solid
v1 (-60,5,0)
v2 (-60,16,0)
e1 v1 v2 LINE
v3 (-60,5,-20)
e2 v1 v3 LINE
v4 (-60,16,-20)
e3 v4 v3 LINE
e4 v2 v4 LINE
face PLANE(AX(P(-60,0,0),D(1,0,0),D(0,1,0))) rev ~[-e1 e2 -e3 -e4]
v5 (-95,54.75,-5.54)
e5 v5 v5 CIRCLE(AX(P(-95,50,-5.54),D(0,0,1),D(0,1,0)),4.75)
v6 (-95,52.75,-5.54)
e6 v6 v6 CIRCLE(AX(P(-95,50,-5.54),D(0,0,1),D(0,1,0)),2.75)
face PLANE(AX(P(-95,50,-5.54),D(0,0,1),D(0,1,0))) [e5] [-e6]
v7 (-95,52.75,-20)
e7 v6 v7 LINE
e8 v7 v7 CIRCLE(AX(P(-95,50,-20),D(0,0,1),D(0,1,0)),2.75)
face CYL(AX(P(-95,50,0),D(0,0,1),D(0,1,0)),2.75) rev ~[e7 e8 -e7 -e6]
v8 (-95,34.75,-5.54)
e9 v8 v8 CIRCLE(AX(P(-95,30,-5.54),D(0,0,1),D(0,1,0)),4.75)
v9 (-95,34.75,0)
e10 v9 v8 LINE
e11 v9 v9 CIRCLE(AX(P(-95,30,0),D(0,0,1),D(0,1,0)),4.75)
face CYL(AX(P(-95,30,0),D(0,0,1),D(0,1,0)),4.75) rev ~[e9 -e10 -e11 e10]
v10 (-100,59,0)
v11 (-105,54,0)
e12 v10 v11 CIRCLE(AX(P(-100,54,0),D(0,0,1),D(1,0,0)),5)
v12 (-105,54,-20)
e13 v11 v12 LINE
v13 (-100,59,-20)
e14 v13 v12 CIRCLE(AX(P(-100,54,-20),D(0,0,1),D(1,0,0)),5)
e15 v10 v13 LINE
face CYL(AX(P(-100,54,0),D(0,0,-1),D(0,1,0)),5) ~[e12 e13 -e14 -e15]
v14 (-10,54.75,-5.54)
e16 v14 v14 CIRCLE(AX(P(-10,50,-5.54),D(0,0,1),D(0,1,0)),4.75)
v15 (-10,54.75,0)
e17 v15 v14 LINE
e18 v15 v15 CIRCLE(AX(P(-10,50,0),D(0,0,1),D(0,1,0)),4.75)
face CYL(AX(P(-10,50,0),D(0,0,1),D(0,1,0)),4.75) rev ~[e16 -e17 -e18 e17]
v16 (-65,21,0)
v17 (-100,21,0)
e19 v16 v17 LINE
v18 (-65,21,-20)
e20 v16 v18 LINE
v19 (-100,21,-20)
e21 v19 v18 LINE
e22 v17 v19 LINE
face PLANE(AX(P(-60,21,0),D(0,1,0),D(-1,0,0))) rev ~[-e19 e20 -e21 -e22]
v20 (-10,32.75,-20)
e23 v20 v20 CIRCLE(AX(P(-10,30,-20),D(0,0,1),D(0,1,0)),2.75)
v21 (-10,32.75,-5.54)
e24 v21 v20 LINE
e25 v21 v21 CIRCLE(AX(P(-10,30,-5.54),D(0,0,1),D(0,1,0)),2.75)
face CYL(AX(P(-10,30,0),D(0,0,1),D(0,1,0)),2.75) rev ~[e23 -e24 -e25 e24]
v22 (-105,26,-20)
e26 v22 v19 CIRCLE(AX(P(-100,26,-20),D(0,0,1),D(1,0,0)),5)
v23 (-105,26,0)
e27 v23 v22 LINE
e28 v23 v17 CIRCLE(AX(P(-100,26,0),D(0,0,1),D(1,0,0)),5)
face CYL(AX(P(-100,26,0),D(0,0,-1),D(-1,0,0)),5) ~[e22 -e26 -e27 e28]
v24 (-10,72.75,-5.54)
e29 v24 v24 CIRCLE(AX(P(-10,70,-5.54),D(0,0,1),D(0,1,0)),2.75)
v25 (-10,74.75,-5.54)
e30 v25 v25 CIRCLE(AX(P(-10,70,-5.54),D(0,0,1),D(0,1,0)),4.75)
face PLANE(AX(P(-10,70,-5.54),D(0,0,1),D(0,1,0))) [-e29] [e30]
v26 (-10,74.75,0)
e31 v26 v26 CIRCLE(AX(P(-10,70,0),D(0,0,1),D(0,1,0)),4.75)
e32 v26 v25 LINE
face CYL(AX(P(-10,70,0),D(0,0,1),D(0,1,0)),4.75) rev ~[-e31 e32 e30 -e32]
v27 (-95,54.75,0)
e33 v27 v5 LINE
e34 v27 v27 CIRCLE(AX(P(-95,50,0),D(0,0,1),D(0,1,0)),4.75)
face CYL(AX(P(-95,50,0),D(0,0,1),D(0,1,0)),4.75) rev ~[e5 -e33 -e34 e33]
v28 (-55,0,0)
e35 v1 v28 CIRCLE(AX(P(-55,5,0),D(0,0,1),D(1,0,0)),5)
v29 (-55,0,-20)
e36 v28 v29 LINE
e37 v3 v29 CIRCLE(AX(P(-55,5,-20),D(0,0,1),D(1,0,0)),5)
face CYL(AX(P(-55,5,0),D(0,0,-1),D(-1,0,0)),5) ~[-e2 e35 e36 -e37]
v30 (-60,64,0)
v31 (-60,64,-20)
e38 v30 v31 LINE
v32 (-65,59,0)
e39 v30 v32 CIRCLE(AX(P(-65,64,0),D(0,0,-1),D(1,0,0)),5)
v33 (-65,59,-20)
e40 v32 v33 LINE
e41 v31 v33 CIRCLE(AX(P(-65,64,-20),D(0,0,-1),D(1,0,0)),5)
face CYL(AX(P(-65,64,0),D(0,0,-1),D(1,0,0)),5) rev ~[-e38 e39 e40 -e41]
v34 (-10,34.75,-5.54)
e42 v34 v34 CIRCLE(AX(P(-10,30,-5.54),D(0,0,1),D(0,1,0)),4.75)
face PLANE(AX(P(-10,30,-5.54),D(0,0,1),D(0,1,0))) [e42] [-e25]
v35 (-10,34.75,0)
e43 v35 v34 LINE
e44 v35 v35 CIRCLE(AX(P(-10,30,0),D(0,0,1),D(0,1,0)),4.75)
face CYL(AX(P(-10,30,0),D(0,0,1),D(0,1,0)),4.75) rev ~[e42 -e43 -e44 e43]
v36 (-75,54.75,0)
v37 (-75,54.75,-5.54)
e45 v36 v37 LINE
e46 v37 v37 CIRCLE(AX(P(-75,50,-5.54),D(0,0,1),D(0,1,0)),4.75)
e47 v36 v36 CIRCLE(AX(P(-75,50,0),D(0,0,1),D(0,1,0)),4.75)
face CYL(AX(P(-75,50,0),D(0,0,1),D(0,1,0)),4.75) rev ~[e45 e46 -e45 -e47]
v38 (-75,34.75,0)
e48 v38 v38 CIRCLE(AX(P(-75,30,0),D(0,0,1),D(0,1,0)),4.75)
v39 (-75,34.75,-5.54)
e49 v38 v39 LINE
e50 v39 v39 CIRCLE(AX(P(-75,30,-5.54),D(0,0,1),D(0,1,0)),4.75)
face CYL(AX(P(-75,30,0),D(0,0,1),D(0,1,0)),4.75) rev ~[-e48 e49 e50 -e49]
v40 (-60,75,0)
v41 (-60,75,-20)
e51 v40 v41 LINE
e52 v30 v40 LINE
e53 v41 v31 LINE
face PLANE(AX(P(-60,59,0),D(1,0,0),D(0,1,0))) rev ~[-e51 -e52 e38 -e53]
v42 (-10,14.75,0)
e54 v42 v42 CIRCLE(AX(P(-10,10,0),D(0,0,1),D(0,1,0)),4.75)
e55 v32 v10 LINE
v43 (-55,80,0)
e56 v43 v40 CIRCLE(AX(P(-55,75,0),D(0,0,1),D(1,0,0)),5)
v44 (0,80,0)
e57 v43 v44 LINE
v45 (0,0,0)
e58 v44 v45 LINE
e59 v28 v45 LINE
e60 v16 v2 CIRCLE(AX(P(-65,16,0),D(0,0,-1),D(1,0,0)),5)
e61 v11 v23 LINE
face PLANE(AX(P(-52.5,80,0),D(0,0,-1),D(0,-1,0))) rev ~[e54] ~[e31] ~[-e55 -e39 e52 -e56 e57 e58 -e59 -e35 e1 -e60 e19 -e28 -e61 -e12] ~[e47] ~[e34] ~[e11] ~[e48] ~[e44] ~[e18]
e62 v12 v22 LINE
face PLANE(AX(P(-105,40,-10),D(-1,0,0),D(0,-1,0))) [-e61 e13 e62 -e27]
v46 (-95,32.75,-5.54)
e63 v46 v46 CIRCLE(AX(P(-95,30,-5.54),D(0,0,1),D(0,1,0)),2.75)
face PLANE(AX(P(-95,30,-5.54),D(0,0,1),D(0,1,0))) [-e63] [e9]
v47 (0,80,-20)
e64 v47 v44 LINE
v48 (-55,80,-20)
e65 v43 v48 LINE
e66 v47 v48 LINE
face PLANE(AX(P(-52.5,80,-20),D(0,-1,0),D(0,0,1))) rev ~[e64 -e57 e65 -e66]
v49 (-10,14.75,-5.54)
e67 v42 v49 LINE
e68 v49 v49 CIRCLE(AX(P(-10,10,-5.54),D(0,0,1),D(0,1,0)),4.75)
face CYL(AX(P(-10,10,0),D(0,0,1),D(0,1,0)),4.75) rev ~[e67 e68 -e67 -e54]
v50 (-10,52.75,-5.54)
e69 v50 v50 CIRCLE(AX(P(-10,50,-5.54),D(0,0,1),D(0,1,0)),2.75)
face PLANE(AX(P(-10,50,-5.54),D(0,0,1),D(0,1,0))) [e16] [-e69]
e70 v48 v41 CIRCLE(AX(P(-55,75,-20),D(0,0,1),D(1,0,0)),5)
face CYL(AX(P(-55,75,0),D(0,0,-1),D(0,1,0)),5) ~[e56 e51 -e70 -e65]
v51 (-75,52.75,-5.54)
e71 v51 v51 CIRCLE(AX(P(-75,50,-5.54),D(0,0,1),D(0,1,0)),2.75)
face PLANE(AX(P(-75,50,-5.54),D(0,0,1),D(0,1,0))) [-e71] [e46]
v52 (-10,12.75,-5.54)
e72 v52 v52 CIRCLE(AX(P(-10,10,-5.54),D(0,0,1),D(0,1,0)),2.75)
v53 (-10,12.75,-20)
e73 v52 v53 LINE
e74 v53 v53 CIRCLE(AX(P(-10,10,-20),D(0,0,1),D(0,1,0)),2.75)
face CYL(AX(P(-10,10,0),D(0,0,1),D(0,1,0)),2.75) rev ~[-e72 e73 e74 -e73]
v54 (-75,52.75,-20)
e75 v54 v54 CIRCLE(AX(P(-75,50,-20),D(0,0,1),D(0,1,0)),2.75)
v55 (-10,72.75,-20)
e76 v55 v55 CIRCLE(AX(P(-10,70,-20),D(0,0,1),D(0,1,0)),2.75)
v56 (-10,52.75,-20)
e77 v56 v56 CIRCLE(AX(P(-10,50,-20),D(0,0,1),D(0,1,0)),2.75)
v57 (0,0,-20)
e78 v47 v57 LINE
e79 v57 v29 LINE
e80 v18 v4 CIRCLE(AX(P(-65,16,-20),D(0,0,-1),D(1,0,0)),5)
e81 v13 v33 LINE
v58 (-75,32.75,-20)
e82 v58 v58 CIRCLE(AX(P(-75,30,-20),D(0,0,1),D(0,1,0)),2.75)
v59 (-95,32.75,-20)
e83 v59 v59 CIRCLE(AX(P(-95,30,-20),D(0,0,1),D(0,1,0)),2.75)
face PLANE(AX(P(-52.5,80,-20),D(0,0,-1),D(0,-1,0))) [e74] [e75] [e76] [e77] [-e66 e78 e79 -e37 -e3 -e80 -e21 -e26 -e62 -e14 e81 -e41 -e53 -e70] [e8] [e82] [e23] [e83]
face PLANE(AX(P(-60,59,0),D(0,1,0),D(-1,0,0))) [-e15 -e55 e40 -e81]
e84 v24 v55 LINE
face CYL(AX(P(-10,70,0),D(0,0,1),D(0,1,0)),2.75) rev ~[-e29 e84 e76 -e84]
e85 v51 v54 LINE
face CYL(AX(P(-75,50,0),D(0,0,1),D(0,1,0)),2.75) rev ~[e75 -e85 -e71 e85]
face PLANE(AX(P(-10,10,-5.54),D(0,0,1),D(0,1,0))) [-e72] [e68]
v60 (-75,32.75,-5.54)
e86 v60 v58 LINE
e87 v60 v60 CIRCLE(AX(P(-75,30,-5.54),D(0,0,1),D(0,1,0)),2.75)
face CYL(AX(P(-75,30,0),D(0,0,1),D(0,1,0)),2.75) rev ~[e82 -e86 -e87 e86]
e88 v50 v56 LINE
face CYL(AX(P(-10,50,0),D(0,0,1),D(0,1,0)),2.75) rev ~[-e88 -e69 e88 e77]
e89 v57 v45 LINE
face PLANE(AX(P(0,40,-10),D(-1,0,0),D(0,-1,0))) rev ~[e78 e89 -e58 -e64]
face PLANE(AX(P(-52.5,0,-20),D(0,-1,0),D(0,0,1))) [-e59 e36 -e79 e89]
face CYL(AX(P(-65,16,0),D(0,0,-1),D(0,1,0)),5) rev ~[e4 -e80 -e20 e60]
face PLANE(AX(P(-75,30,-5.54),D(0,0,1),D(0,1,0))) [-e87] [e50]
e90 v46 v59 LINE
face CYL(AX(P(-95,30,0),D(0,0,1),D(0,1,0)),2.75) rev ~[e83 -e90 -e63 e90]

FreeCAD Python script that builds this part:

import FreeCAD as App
import Part
import Sketcher
from FreeCAD import Vector


def edges_at(feature, points):
    """Names of the edges that pass closest to the given points."""
    edges = feature.Shape.Edges
    near = lambda p: min(range(len(edges)), key=lambda i: edges[i].distToShape(Part.Vertex(*p))[0])
    return sorted({f"Edge{near(p) + 1}" for p in points})


def add_polygon(sketch, points):
    """Adds a closed chain of lines whose ends are joined by coincident constraints."""
    first, n = sketch.GeometryCount, len(points)
    for a, b in zip(points, points[1:] + points[:1]):
        sketch.addGeometry(Part.LineSegment(App.Vector(*a, 0), App.Vector(*b, 0)), False)
    for i in range(n):
        sketch.addConstraint(Sketcher.Constraint("Coincident", first + i, 2, first + (i + 1) % n, 1))

doc = App.newDocument("Part")
params = doc.addObject("Spreadsheet::Sheet", "Params")
for row, (alias, value) in enumerate([
    ("sketch1_width", "80 mm"),
    ("sketch1_height", "20 mm"),
    ("pad1_length", "105 mm"),
    ("sketch2_diameter", "5.5 mm"),
    ("sketch3_diameter", "9.5 mm"),
    ("pocket2_length", "5.54 mm"),
    ("sketch4_width", "21 mm"),
    ("sketch4_height", "45 mm"),
    ("fillet_radius", "5 mm"),
], start=1):
    params.set(f"A{row}", alias)
    params.set(f"B{row}", "=" + value)
    params.setAlias(f"B{row}", alias)

body = doc.addObject("PartDesign::Body", "Body")

# Sketch on XZ plane
sketch1 = body.newObject("Sketcher::SketchObject", "Sketch")
sketch1.AttachmentSupport = (doc.getObject("XZ_Plane"), [""])
sketch1.MapMode = "FlatFace"
add_polygon(sketch1, [(-40, 0), (-40, -20), (40, -20), (40, 0)])  # lines 0-3
sketch1.addConstraint([
    Sketcher.Constraint("Vertical", 0),
    Sketcher.Constraint("Horizontal", 1),
    Sketcher.Constraint("Vertical", 2),
    Sketcher.Constraint("Horizontal", 3),
    Sketcher.Constraint("Symmetric", 2, 2, 3, 2, -1, 1),
    Sketcher.Constraint("DistanceX", 1, 1, 1, 2, 80.0),
    Sketcher.Constraint("DistanceY", 0, 2, 0, 1, 20.0),
])
sketch1.setExpression("Constraints[9]", "Params.sketch1_width")
sketch1.setExpression("Constraints[10]", "Params.sketch1_height")
pad1 = body.newObject("PartDesign::Pad", "Pad")
pad1.Profile = sketch1
pad1.setExpression("Length", "Params.pad1_length")
pad1.Midplane = True

# Sketch on XY plane
sketch2 = body.newObject("Sketcher::SketchObject", "Sketch001")
sketch2.AttachmentSupport = (doc.getObject("XY_Plane"), [""])
sketch2.MapMode = "FlatFace"
sketch2.addGeometry([
    Part.Circle(Vector(30, 42.5, 0), Vector(0, 0, 1), 2.8),  # 0
    Part.Circle(Vector(-30, 42.5, 0), Vector(0, 0, 1), 2.8),  # 1
    Part.Circle(Vector(10, -42.5, 0), Vector(0, 0, 1), 2.8),  # 2
    Part.Circle(Vector(-10, -42.5, 0), Vector(0, 0, 1), 2.8),  # 3
    Part.Circle(Vector(10, -22.5, 0), Vector(0, 0, 1), 2.8),  # 4
    Part.Circle(Vector(-10, -22.5, 0), Vector(0, 0, 1), 2.8),  # 5
    Part.Circle(Vector(10, 42.5, 0), Vector(0, 0, 1), 2.8),  # 6
    Part.Circle(Vector(-10, 42.5, 0), Vector(0, 0, 1), 2.8),  # 7
], False)
sketch2.addConstraint([
    Sketcher.Constraint("Equal", 0, 1),
    Sketcher.Constraint("Equal", 1, 2),
    Sketcher.Constraint("Equal", 2, 3),
    Sketcher.Constraint("Equal", 3, 4),
    Sketcher.Constraint("Equal", 4, 5),
    Sketcher.Constraint("Equal", 5, 6),
    Sketcher.Constraint("Equal", 6, 7),
    Sketcher.Constraint("Symmetric", 3, 3, 6, 3, -1, 1),
    Sketcher.Constraint("Symmetric", 2, 3, 7, 3, -1, 1),
    Sketcher.Constraint("Symmetric", 0, 3, 1, 3, -2),
    Sketcher.Constraint("Symmetric", 2, 3, 3, 3, -2),
    Sketcher.Constraint("Symmetric", 4, 3, 5, 3, -2),
    Sketcher.Constraint("Horizontal", 1, 3, 6, 3),
    Sketcher.Constraint("Vertical", 2, 3, 4, 3),
    Sketcher.Constraint("Diameter", 0, 5.5),
    Sketcher.Constraint("DistanceX", -1, 1, 0, 3, 30.0),
    Sketcher.Constraint("DistanceX", -1, 1, 2, 3, 10.0),
    Sketcher.Constraint("DistanceY", 2, 3, 0, 3, 85.0),
    Sketcher.Constraint("DistanceY", 2, 3, 4, 3, 20.0),
])
sketch2.setExpression("Constraints[14]", "Params.sketch2_diameter")
pocket1 = body.newObject("PartDesign::Pocket", "Pocket")
pocket1.Profile = sketch2
pocket1.Type = "ThroughAll"

# Sketch on XY plane
sketch3 = body.newObject("Sketcher::SketchObject", "Sketch002")
sketch3.AttachmentSupport = (doc.getObject("XY_Plane"), [""])
sketch3.MapMode = "FlatFace"
sketch3.addGeometry([
    Part.Circle(Vector(10, -42.5, 0), Vector(0, 0, 1), 4.8),  # 0
    Part.Circle(Vector(-10, -42.5, 0), Vector(0, 0, 1), 4.8),  # 1
    Part.Circle(Vector(10, -22.5, 0), Vector(0, 0, 1), 4.8),  # 2
    Part.Circle(Vector(-10, -22.5, 0), Vector(0, 0, 1), 4.8),  # 3
    Part.Circle(Vector(-10, 42.5, 0), Vector(0, 0, 1), 4.8),  # 4
    Part.Circle(Vector(-30, 42.5, 0), Vector(0, 0, 1), 4.8),  # 5
    Part.Circle(Vector(30, 42.5, 0), Vector(0, 0, 1), 4.8),  # 6
    Part.Circle(Vector(10, 42.5, 0), Vector(0, 0, 1), 4.8),  # 7
], False)
sketch3.addConstraint([
    Sketcher.Constraint("Equal", 0, 1),
    Sketcher.Constraint("Equal", 1, 2),
    Sketcher.Constraint("Equal", 2, 3),
    Sketcher.Constraint("Equal", 3, 4),
    Sketcher.Constraint("Equal", 4, 5),
    Sketcher.Constraint("Equal", 5, 6),
    Sketcher.Constraint("Equal", 6, 7),
    Sketcher.Constraint("Symmetric", 0, 3, 4, 3, -1, 1),
    Sketcher.Constraint("Symmetric", 1, 3, 7, 3, -1, 1),
    Sketcher.Constraint("Symmetric", 0, 3, 1, 3, -2),
    Sketcher.Constraint("Symmetric", 2, 3, 3, 3, -2),
    Sketcher.Constraint("Symmetric", 5, 3, 6, 3, -2),
    Sketcher.Constraint("Horizontal", 4, 3, 5, 3),
    Sketcher.Constraint("Vertical", 0, 3, 2, 3),
    Sketcher.Constraint("Diameter", 0, 9.5),
    Sketcher.Constraint("DistanceX", -1, 1, 0, 3, 10.0),
    Sketcher.Constraint("DistanceX", 5, 3, -1, 1, 30.0),
    Sketcher.Constraint("DistanceY", 0, 3, 2, 3, 20.0),
    Sketcher.Constraint("DistanceY", 3, 3, 4, 3, 65.0),
])
sketch3.setExpression("Constraints[14]", "Params.sketch3_diameter")
pocket2 = body.newObject("PartDesign::Pocket", "Pocket001")
pocket2.Profile = sketch3
pocket2.setExpression("Length", "Params.pocket2_length")

# Sketch on XY plane
sketch4 = body.newObject("Sketcher::SketchObject", "Sketch003")
sketch4.AttachmentSupport = (doc.getObject("XY_Plane"), [""])
sketch4.MapMode = "FlatFace"
add_polygon(sketch4, [(40, -52), (40, -8), (19, -8), (19, -52)])  # lines 0-3
add_polygon(sketch4, [(-19, -52), (-19, -8), (-40, -8), (-40, -52)])  # lines 4-7
sketch4.addConstraint([
    Sketcher.Constraint("Vertical", 0),
    Sketcher.Constraint("Horizontal", 1),
    Sketcher.Constraint("Vertical", 2),
    Sketcher.Constraint("Horizontal", 3),
    Sketcher.Constraint("Vertical", 4),
    Sketcher.Constraint("Horizontal", 5),
    Sketcher.Constraint("Vertical", 6),
    Sketcher.Constraint("Horizontal", 7),
    Sketcher.Constraint("Symmetric", 1, 2, 4, 2, -2),
    Sketcher.Constraint("Symmetric", 3, 2, 6, 2, -2),
    Sketcher.Constraint("DistanceX", 1, 2, 1, 1, 21.0),
    Sketcher.Constraint("DistanceY", 0, 1, 0, 2, 45.0),
    Sketcher.Constraint("DistanceX", -1, 1, 0, 2, 40.0),
    Sketcher.Constraint("DistanceY", 0, 2, -1, 1, 7.5),
])
sketch4.setExpression("Constraints[18]", "Params.sketch4_width")
sketch4.setExpression("Constraints[19]", "Params.sketch4_height")
pocket3 = body.newObject("PartDesign::Pocket", "Pocket002")
pocket3.Profile = sketch4
pocket3.Type = "ThroughAll"
doc.recompute()

fillet = body.newObject("PartDesign::Fillet", "Fillet")
fillet.Base = (pocket3, edges_at(pocket3, [
    (40, -7.5, -10),
    (19, -7.5, -10),
    (19, -52.5, -10),
    (-19, -52.5, -10),
    (-19, -7.5, -10),
    (-40, -7.5, -10),
]))
fillet.setExpression("Radius", "Params.fillet_radius")
body2 = doc.addObject("PartDesign::Body", "Body001")
doc.recompute()

body.Placement = App.Placement(Vector(-52.5, 40, 0), App.Rotation(Vector(0, 0, -1), 90))
boolean = body2.newObject("PartDesign::Boolean", "Boolean")
boolean.Type = "Fuse"
boolean.addObjects([body])

doc.recompute()
